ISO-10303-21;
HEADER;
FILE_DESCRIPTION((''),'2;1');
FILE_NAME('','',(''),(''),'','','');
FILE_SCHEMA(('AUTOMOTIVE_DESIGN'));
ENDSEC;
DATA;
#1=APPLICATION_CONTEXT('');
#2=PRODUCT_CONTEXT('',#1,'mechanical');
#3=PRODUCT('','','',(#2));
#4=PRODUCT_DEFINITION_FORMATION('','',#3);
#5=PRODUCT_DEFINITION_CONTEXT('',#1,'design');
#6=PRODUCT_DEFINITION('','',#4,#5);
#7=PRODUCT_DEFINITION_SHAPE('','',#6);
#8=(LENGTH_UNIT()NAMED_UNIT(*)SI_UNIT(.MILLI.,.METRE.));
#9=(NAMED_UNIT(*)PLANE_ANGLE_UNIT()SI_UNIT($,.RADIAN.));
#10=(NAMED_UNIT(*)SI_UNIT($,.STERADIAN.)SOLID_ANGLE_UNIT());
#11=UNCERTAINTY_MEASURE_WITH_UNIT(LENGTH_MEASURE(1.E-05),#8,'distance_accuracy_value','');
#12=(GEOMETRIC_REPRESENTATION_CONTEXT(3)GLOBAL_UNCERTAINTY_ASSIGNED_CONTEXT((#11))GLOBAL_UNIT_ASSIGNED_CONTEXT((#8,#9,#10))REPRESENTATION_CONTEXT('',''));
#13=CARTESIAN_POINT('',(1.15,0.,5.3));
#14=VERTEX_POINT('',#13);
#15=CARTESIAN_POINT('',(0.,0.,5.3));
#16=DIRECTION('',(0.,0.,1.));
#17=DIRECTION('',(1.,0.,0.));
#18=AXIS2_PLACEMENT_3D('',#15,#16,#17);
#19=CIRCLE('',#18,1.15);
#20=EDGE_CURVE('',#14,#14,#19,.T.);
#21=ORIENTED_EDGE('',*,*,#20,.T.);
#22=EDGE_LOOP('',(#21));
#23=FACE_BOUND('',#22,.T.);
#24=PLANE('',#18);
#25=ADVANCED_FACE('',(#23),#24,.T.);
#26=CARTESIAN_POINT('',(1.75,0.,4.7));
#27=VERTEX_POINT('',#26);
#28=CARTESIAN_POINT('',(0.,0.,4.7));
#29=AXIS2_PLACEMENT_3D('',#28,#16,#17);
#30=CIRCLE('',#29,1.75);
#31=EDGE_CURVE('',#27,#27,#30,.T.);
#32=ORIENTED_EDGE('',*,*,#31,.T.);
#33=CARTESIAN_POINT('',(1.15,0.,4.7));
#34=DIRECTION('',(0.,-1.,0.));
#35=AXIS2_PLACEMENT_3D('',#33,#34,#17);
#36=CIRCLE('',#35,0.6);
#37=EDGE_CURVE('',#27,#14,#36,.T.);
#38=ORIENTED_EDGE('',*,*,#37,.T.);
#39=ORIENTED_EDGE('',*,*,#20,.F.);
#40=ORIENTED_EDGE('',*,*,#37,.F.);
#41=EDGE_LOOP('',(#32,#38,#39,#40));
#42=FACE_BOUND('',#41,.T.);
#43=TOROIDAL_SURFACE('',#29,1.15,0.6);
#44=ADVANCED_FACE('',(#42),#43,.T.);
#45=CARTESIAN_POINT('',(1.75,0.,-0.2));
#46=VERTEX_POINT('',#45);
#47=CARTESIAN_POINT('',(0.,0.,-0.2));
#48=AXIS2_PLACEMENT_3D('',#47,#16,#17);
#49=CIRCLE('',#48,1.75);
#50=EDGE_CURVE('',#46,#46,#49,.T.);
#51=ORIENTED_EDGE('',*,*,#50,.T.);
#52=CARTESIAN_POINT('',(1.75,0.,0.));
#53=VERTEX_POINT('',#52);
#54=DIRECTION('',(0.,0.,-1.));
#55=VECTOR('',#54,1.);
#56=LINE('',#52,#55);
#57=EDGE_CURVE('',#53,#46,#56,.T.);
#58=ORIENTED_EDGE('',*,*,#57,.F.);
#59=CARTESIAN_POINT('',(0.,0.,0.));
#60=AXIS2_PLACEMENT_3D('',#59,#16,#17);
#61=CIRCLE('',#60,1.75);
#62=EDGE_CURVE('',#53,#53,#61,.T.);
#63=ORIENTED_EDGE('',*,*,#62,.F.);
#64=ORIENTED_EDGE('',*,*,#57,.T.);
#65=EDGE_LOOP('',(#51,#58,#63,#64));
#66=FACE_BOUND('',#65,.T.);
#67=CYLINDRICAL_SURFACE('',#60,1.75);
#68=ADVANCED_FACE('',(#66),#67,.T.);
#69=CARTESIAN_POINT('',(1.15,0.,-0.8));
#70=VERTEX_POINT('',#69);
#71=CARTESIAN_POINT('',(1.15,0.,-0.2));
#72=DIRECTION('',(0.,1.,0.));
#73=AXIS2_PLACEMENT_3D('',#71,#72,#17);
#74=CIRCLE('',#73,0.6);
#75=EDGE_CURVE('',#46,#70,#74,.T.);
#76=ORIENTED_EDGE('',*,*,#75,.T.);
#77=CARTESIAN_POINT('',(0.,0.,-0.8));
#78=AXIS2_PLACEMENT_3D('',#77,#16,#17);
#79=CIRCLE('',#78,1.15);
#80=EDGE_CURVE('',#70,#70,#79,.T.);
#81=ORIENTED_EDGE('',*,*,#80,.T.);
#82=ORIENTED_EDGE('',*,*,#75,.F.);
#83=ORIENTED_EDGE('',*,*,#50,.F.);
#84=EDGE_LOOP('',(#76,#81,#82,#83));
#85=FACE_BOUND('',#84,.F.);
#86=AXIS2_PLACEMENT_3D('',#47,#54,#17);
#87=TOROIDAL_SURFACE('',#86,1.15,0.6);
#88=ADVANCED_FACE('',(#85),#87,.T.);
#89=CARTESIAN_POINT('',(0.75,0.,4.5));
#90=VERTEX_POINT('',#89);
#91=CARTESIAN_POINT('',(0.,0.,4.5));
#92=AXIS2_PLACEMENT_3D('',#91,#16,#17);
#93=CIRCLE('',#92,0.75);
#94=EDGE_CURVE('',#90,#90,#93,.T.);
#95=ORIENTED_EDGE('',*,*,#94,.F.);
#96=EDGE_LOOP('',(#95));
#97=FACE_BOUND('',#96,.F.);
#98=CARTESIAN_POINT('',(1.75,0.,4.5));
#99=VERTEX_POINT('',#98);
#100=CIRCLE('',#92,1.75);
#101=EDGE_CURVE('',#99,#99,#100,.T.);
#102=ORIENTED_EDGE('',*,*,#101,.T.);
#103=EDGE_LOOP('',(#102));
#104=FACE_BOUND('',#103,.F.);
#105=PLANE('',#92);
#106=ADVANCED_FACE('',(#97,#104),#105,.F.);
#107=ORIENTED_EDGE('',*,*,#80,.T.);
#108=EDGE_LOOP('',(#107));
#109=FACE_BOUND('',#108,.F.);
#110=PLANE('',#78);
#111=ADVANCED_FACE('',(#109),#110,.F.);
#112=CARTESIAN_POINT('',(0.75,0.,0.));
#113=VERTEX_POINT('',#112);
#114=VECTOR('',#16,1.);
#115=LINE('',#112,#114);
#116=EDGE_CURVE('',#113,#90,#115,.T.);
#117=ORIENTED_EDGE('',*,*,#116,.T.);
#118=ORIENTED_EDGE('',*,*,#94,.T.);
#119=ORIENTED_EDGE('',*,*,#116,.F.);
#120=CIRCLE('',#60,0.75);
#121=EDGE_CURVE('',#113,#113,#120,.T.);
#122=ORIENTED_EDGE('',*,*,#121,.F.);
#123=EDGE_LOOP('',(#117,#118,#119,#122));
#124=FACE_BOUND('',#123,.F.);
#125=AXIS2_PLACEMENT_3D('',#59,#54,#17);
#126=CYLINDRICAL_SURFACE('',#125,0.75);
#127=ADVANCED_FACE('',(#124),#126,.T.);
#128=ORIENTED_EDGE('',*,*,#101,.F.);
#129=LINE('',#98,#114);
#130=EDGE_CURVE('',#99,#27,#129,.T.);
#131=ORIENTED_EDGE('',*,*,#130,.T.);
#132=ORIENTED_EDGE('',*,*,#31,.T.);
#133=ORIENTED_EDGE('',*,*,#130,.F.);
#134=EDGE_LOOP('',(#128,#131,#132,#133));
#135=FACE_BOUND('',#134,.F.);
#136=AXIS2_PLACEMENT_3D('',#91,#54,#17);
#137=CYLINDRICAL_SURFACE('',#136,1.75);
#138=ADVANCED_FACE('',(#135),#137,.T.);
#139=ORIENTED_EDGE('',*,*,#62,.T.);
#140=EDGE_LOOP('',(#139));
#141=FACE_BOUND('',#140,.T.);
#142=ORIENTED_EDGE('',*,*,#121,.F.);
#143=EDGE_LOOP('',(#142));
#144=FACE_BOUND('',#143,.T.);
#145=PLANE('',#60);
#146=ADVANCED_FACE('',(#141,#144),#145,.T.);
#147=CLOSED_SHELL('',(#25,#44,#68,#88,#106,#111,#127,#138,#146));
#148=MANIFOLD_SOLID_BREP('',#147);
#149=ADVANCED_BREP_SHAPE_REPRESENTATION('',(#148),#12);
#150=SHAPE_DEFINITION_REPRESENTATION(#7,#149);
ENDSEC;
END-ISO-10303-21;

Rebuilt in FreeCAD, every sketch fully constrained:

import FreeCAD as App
import Part
import Sketcher
from FreeCAD import Vector
Q = App.Units.Quantity


def edges_at(feature, points):
    """Names of the edges that pass closest to the given points."""
    edges = feature.Shape.Edges
    near = lambda p: min(range(len(edges)), key=lambda i: edges[i].distToShape(Part.Vertex(*p))[0])
    return sorted({f"Edge{near(p) + 1}" for p in points})

doc = App.newDocument("Part")
body = doc.addObject("PartDesign::Body", "Body")

# Sketch on XY plane
sketch1 = body.newObject("Sketcher::SketchObject", "Sketch")
sketch1.AttachmentSupport = (doc.getObject("XY_Plane"), [""])
sketch1.MapMode = "FlatFace"
sketch1.addGeometry(Part.Circle(Vector(0, 0, 0), Vector(0, 0, 1), 0.8), False)
sketch1.addConstraint(Sketcher.Constraint("Coincident", 0, 3, -1, 1))
sketch1.addConstraint(Sketcher.Constraint("Diameter", 0, Q("1.5 mm")))
pad1 = body.newObject("PartDesign::Pad", "Pad")
pad1.Profile = sketch1
pad1.Length = 4.5

# Sketch on XY plane
sketch2 = body.newObject("Sketcher::SketchObject", "Sketch001")
sketch2.AttachmentSupport = (doc.getObject("XY_Plane"), [""])
sketch2.MapMode = "FlatFace"
sketch2.addGeometry(Part.Circle(Vector(0, 0, 0), Vector(0, 0, 1), 1.8), False)
sketch2.addConstraint(Sketcher.Constraint("Coincident", 0, 3, -1, 1))
sketch2.addConstraint(Sketcher.Constraint("Diameter", 0, Q("3.5 mm")))
pad2 = body.newObject("PartDesign::Pad", "Pad001")
pad2.Profile = sketch2
pad2.Length = 0.8
pad2.Reversed = True

# Sketch on XY plane
sketch3 = body.newObject("Sketcher::SketchObject", "Sketch002")
sketch3.AttachmentSupport = (doc.getObject("XY_Plane"), [""])
sketch3.MapMode = "FlatFace"
sketch3.AttachmentOffset = App.Placement(Vector(0, 0, 4.5), App.Rotation())
sketch3.addGeometry(Part.Circle(Vector(0, 0, 0), Vector(0, 0, 1), 1.8), False)
sketch3.addConstraint(Sketcher.Constraint("Coincident", 0, 3, -1, 1))
sketch3.addConstraint(Sketcher.Constraint("Diameter", 0, Q("3.5 mm")))
pad3 = body.newObject("PartDesign::Pad", "Pad002")
pad3.Profile = sketch3
pad3.Length = 0.8
doc.recompute()

fillet = body.newObject("PartDesign::Fillet", "Fillet")
fillet.Base = (pad3, edges_at(pad3, [(-1.75, 0, 5.3), (-1.75, 0, -0.8)]))
fillet.Radius = 0.6

doc.recompute()
